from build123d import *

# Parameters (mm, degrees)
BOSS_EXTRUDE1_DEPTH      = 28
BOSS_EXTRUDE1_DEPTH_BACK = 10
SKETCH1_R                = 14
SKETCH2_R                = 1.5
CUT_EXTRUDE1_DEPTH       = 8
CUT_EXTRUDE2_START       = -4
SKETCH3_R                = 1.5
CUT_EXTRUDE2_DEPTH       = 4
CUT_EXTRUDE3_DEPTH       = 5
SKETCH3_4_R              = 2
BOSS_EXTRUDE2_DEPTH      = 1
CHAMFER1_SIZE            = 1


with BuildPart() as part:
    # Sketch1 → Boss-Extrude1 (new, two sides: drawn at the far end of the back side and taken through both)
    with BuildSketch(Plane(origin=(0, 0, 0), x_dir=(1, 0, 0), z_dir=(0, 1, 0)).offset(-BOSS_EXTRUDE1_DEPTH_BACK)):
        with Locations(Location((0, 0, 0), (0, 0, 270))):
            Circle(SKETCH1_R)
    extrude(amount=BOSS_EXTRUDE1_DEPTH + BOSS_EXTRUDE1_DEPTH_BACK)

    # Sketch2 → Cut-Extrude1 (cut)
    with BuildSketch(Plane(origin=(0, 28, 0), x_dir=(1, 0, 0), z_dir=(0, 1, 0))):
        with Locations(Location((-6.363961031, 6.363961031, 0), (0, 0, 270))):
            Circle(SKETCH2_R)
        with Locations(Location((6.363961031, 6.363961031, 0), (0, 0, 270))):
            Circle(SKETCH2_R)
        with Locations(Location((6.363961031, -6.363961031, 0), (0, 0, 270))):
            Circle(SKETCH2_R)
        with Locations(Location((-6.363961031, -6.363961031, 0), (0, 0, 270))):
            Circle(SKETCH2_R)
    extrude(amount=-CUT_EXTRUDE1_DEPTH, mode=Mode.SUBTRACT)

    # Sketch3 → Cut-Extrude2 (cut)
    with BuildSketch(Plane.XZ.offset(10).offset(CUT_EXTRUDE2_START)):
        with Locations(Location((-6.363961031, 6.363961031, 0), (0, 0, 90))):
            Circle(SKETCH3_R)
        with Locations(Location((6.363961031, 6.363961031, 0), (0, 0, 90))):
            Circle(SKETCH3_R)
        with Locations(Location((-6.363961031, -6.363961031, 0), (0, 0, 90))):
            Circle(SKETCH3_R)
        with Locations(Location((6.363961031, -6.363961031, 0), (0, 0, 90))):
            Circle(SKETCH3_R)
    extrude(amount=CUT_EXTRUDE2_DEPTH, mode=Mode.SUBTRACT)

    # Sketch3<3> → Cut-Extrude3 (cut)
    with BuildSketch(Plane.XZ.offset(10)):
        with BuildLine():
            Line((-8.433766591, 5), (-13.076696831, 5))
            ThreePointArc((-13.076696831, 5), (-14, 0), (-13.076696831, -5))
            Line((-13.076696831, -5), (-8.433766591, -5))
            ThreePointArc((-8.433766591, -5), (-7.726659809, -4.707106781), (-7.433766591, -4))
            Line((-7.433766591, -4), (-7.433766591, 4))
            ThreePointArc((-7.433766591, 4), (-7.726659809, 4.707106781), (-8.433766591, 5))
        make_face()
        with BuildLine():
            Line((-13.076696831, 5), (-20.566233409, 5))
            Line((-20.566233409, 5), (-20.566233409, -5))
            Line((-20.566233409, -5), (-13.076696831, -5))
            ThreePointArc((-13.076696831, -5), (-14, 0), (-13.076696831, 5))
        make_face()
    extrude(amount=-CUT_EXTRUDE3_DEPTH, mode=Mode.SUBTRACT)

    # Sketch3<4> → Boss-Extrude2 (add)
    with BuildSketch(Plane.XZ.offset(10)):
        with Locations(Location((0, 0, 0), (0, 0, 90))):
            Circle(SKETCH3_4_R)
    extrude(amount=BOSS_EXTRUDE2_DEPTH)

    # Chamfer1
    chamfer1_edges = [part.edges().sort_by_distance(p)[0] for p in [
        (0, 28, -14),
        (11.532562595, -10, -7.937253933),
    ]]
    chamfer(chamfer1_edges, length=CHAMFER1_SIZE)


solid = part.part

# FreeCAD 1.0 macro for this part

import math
import FreeCAD as App
import Part
import Sketcher
from FreeCAD import Vector
Q = App.Units.Quantity


def edges_at(feature, points):
    """Names of the edges that pass closest to the given points."""
    edges = feature.Shape.Edges
    near = lambda p: min(range(len(edges)), key=lambda i: edges[i].distToShape(Part.Vertex(*p))[0])
    return sorted({f"Edge{near(p) + 1}" for p in points})

doc = App.newDocument("Part")
params = doc.addObject("Spreadsheet::Sheet", "Params")
for row, (alias, value) in enumerate([
    ("sketch1_diameter", "28 mm"),
    ("pad1_length", "28 mm"),
    ("pad1_length2", "10 mm"),
    ("sketch2_diameter", "3 mm"),
    ("pocket1_length", "8 mm"),
    ("sketch3_diameter", "3 mm"),
    ("pocket2_length", "4 mm"),
    ("sketch4_radius", "1 mm"),
    ("sketch4_height", "10 mm"),
    ("pocket3_length", "5 mm"),
    ("sketch5_diameter", "4 mm"),
    ("pad2_length", "1 mm"),
    ("chamfer_size", "1 mm"),
], start=1):
    params.set(f"A{row}", alias)
    params.set(f"B{row}", "=" + value)
    params.setAlias(f"B{row}", alias)

body = doc.addObject("PartDesign::Body", "Body")

# Sketch on XZ plane
sketch1 = body.newObject("Sketcher::SketchObject", "Sketch")
sketch1.AttachmentSupport = (doc.getObject("XZ_Plane"), [""])
sketch1.MapMode = "FlatFace"
sketch1.addGeometry(Part.Circle(Vector(0, 0, 0), Vector(0, 0, 1), 14), False)
sketch1.addConstraint(Sketcher.Constraint("Coincident", 0, 3, -1, 1))
sketch1.addConstraint(Sketcher.Constraint("Diameter", 0, Q("28 mm")))
sketch1.setExpression("Constraints[1]", "Params.sketch1_diameter")
pad1 = body.newObject("PartDesign::Pad", "Pad")
pad1.Profile = sketch1
pad1.Type = "TwoLengths"
pad1.setExpression("Length", "Params.pad1_length")
pad1.setExpression("Length2", "Params.pad1_length2")
pad1.Reversed = True

# Sketch on XZ plane
sketch2 = body.newObject("Sketcher::SketchObject", "Sketch001")
sketch2.AttachmentSupport = (doc.getObject("XZ_Plane"), [""])
sketch2.MapMode = "FlatFace"
sketch2.AttachmentOffset = App.Placement(Vector(0, 0, -28), App.Rotation())
sketch2.addGeometry(Part.Circle(Vector(-6.4, -6.4, 0), Vector(0, 0, 1), 1.5), False)
sketch2.addGeometry(Part.Circle(Vector(6.4, -6.4, 0), Vector(0, 0, 1), 1.5), False)
sketch2.addGeometry(Part.Circle(Vector(6.4, 6.4, 0), Vector(0, 0, 1), 1.5), False)
sketch2.addGeometry(Part.Circle(Vector(-6.4, 6.4, 0), Vector(0, 0, 1), 1.5), False)
sketch2.addConstraint(Sketcher.Constraint("Equal", 0, 1))
sketch2.addConstraint(Sketcher.Constraint("Equal", 1, 2))
sketch2.addConstraint(Sketcher.Constraint("Equal", 2, 3))
sketch2.addConstraint(Sketcher.Constraint("Symmetric", 0, 3, 2, 3, -1, 1))
sketch2.addConstraint(Sketcher.Constraint("Symmetric", 1, 3, 3, 3, -1, 1))
sketch2.addConstraint(Sketcher.Constraint("Symmetric", 0, 3, 1, 3, -2))
sketch2.addConstraint(Sketcher.Constraint("Diameter", 0, Q("3 mm")))
sketch2.addConstraint(Sketcher.Constraint("DistanceX", 0, 3, -1, 1, Q("6.363961 mm")))
sketch2.addConstraint(Sketcher.Constraint("DistanceY", 0, 3, -1, 1, Q("6.363961 mm")))
sketch2.setExpression("Constraints[6]", "Params.sketch2_diameter")
pocket1 = body.newObject("PartDesign::Pocket", "Pocket")
pocket1.Profile = sketch2
pocket1.setExpression("Length", "Params.pocket1_length")
pocket1.Reversed = True

# Sketch on XZ plane
sketch3 = body.newObject("Sketcher::SketchObject", "Sketch002")
sketch3.AttachmentSupport = (doc.getObject("XZ_Plane"), [""])
sketch3.MapMode = "FlatFace"
sketch3.AttachmentOffset = App.Placement(Vector(0, 0, 6), App.Rotation())
sketch3.addGeometry(Part.Circle(Vector(-6.4, 6.4, 0), Vector(0, 0, 1), 1.5), False)
sketch3.addGeometry(Part.Circle(Vector(6.4, 6.4, 0), Vector(0, 0, 1), 1.5), False)
sketch3.addGeometry(Part.Circle(Vector(-6.4, -6.4, 0), Vector(0, 0, 1), 1.5), False)
sketch3.addGeometry(Part.Circle(Vector(6.4, -6.4, 0), Vector(0, 0, 1), 1.5), False)
sketch3.addConstraint(Sketcher.Constraint("Equal", 0, 1))
sketch3.addConstraint(Sketcher.Constraint("Equal", 1, 2))
sketch3.addConstraint(Sketcher.Constraint("Equal", 2, 3))
sketch3.addConstraint(Sketcher.Constraint("Symmetric", 1, 3, 2, 3, -1, 1))
sketch3.addConstraint(Sketcher.Constraint("Symmetric", 0, 3, 3, 3, -1, 1))
sketch3.addConstraint(Sketcher.Constraint("Symmetric", 0, 3, 1, 3, -2))
sketch3.addConstraint(Sketcher.Constraint("Diameter", 0, Q("3 mm")))
sketch3.addConstraint(Sketcher.Constraint("DistanceX", 0, 3, -1, 1, Q("6.363961 mm")))
sketch3.addConstraint(Sketcher.Constraint("DistanceY", -1, 1, 0, 3, Q("6.363961 mm")))
sketch3.setExpression("Constraints[6]", "Params.sketch3_diameter")
pocket2 = body.newObject("PartDesign::Pocket", "Pocket001")
pocket2.Profile = sketch3
pocket2.setExpression("Length", "Params.pocket2_length")
pocket2.Reversed = True

# Sketch on XZ plane
sketch4 = body.newObject("Sketcher::SketchObject", "Sketch003")
sketch4.AttachmentSupport = (doc.getObject("XZ_Plane"), [""])
sketch4.MapMode = "FlatFace"
sketch4.AttachmentOffset = App.Placement(Vector(0, 0, 10), App.Rotation())
sketch4.addGeometry(Part.LineSegment(Vector(-8.4, 5, 0), Vector(-20.6, 5, 0)), False)
sketch4.addGeometry(Part.LineSegment(Vector(-20.6, 5, 0), Vector(-20.6, -5, 0)), False)
sketch4.addGeometry(Part.LineSegment(Vector(-20.6, -5, 0), Vector(-8.4, -5, 0)), False)
sketch4.addGeometry(Part.ArcOfCircle(Part.Circle(Vector(-8.4, -4, 0), Vector(0, 0, 1), 1), math.radians(-90), math.radians(0)), False)
sketch4.addGeometry(Part.LineSegment(Vector(-7.4, -4, 0), Vector(-7.4, 4, 0)), False)
sketch4.addGeometry(Part.ArcOfCircle(Part.Circle(Vector(-8.4, 4, 0), Vector(0, 0, 1), 1), math.radians(0), math.radians(90)), False)
sketch4.addConstraint(Sketcher.Constraint("Coincident", 0, 2, 1, 1))
sketch4.addConstraint(Sketcher.Constraint("Coincident", 1, 2, 2, 1))
sketch4.addConstraint(Sketcher.Constraint("Tangent", 2, 2, 3, 1))
sketch4.addConstraint(Sketcher.Constraint("Tangent", 3, 2, 4, 1))
sketch4.addConstraint(Sketcher.Constraint("Tangent", 4, 2, 5, 1))
sketch4.addConstraint(Sketcher.Constraint("Tangent", 5, 2, 0, 1))
sketch4.addConstraint(Sketcher.Constraint("Horizontal", 0))
sketch4.addConstraint(Sketcher.Constraint("Vertical", 1))
sketch4.addConstraint(Sketcher.Constraint("Horizontal", 2))
sketch4.addConstraint(Sketcher.Constraint("Vertical", 4))
sketch4.addConstraint(Sketcher.Constraint("Equal", 3, 5))
sketch4.addConstraint(Sketcher.Constraint("Radius", 3, Q("1 mm")))
sketch4.addConstraint(Sketcher.Constraint("DistanceY", 1, 2, 1, 1, Q("10 mm")))
sketch4.addConstraint(Sketcher.Constraint("DistanceY", 3, 3, -1, 1, Q("4 mm")))
sketch4.addConstraint(Sketcher.Constraint("DistanceX", 0, 2, 0, 1, Q("12.132467 mm")))
sketch4.addConstraint(Sketcher.Constraint("DistanceX", 3, 3, -1, 1, Q("8.433767 mm")))
sketch4.setExpression("Constraints[11]", "Params.sketch4_radius")
sketch4.setExpression("Constraints[12]", "Params.sketch4_height")
pocket3 = body.newObject("PartDesign::Pocket", "Pocket002")
pocket3.Profile = sketch4
pocket3.setExpression("Length", "Params.pocket3_length")

# Sketch on XZ plane
sketch5 = body.newObject("Sketcher::SketchObject", "Sketch004")
sketch5.AttachmentSupport = (doc.getObject("XZ_Plane"), [""])
sketch5.MapMode = "FlatFace"
sketch5.AttachmentOffset = App.Placement(Vector(0, 0, 10), App.Rotation())
sketch5.addGeometry(Part.Circle(Vector(0, 0, 0), Vector(0, 0, 1), 2), False)
sketch5.addConstraint(Sketcher.Constraint("Coincident", 0, 3, -1, 1))
sketch5.addConstraint(Sketcher.Constraint("Diameter", 0, Q("4 mm")))
sketch5.setExpression("Constraints[1]", "Params.sketch5_diameter")
pad2 = body.newObject("PartDesign::Pad", "Pad001")
pad2.Profile = sketch5
pad2.setExpression("Length", "Params.pad2_length")
doc.recompute()

chamfer = body.newObject("PartDesign::Chamfer", "Chamfer")
chamfer.Base = (pad2, edges_at(pad2, [(0, 28, -14), (11.533, -10, -7.937)]))
chamfer.setExpression("Size", "Params.chamfer_size")

doc.recompute()
